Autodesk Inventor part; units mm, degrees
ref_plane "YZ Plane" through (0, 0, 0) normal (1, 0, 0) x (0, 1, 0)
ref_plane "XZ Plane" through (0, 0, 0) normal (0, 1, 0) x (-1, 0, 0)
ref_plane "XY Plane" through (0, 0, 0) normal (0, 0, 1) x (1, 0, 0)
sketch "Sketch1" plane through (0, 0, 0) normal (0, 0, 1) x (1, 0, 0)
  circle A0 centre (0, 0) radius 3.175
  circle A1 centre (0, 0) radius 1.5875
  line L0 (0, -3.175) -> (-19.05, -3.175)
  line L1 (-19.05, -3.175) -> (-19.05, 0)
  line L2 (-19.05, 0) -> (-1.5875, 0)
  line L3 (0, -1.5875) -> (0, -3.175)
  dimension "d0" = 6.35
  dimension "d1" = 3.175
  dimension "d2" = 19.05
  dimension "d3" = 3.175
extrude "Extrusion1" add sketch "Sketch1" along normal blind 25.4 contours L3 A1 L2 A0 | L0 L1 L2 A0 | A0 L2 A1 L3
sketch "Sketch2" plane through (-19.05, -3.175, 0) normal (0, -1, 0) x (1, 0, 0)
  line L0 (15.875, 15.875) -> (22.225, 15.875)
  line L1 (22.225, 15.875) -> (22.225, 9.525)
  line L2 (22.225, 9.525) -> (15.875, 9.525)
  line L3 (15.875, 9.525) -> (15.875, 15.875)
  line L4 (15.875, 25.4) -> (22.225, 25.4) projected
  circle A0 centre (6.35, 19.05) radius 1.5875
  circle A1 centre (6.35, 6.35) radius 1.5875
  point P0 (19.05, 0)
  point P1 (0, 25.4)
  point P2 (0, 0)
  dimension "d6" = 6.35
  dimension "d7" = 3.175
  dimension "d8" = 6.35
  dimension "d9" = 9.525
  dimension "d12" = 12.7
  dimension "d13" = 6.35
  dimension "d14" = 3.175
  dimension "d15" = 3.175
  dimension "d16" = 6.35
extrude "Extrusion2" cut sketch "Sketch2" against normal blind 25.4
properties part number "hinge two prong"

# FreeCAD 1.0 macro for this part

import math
import FreeCAD as App
import Part
import Sketcher

V = App.Vector
Q = App.Units.Quantity


def add_polygon(sketch, points):
    """Adds a closed chain of lines whose ends are joined by coincident constraints."""
    first, n = sketch.GeometryCount, len(points)
    for a, b in zip(points, points[1:] + points[:1]):
        sketch.addGeometry(Part.LineSegment(App.Vector(*a, 0), App.Vector(*b, 0)), False)
    for i in range(n):
        sketch.addConstraint(Sketcher.Constraint("Coincident", first + i, 2, first + (i + 1) % n, 1))

doc = App.newDocument("Part")
body = doc.addObject("PartDesign::Body", "Body")

# Sketch on XY plane
sketch1 = body.newObject("Sketcher::SketchObject", "Sketch")
sketch1.AttachmentSupport = (doc.getObject("XY_Plane"), [""])
sketch1.MapMode = "FlatFace"
sketch1.addGeometry(Part.LineSegment(V(-3.2, 0, 0), V(-19.1, 0, 0)), False)
sketch1.addGeometry(Part.LineSegment(V(-19.1, 0, 0), V(-19.1, -3.2, 0)), False)
sketch1.addGeometry(Part.LineSegment(V(-19.1, -3.2, 0), V(0, -3.2, 0)), False)
sketch1.addGeometry(Part.ArcOfCircle(Part.Circle(V(0, 0, 0), V(0, 0, 1), 3.2), math.radians(-90), math.radians(180)), False)
sketch1.addGeometry(Part.Circle(V(0, 0, 0), V(0, 0, 1), 1.6), False)
sketch1.addConstraint(Sketcher.Constraint("Coincident", 0, 2, 1, 1))
sketch1.addConstraint(Sketcher.Constraint("Coincident", 1, 2, 2, 1))
sketch1.addConstraint(Sketcher.Constraint("Tangent", 2, 2, 3, 1))
sketch1.addConstraint(Sketcher.Constraint("Coincident", 3, 2, 0, 1))
sketch1.addConstraint(Sketcher.Constraint("Horizontal", 0))
sketch1.addConstraint(Sketcher.Constraint("Vertical", 1))
sketch1.addConstraint(Sketcher.Constraint("Horizontal", 2))
sketch1.addConstraint(Sketcher.Constraint("Coincident", 3, 3, -1, 1))
sketch1.addConstraint(Sketcher.Constraint("Coincident", 4, 3, -1, 1))
sketch1.addConstraint(Sketcher.Constraint("PointOnObject", 0, 2, -1))
sketch1.addConstraint(Sketcher.Constraint("Diameter", 4, Q("0.125 in")))
sketch1.addConstraint(Sketcher.Constraint("Radius", 3, Q("0.125 in")))
sketch1.addConstraint(Sketcher.Constraint("DistanceX", 2, 1, 2, 2, Q("0.75 in")))
pad1 = body.newObject("PartDesign::Pad", "Pad")
pad1.Profile = sketch1
pad1.Length = Q("1 in")

# Sketch on XZ plane
sketch2 = body.newObject("Sketcher::SketchObject", "Sketch001")
sketch2.AttachmentSupport = (doc.getObject("XZ_Plane"), [""])
sketch2.MapMode = "FlatFace"
sketch2.AttachmentOffset = App.Placement(V(0, 0, 0.125 * 25.4), App.Rotation())
add_polygon(sketch2, [(3.2, 15.9), (-3.2, 15.9), (-3.2, 9.5), (3.2, 9.5)])  # lines 0-3
sketch2.addGeometry(Part.Circle(V(-12.7, 19.1, 0), V(0, 0, 1), 1.6), False)  # 4
sketch2.addGeometry(Part.Circle(V(-12.7, 6.3, 0), V(0, 0, 1), 1.6), False)  # 5
sketch2.addConstraint(Sketcher.Constraint("Horizontal", 0))
sketch2.addConstraint(Sketcher.Constraint("Vertical", 1))
sketch2.addConstraint(Sketcher.Constraint("Horizontal", 2))
sketch2.addConstraint(Sketcher.Constraint("Vertical", 3))
sketch2.addConstraint(Sketcher.Constraint("Equal", 4, 5))
sketch2.addConstraint(Sketcher.Constraint("Vertical", 4, 3, 5, 3))
sketch2.addConstraint(Sketcher.Constraint("Equal", 2, 1))
sketch2.addConstraint(Sketcher.Constraint("Diameter", 4, Q("0.125 in")))
sketch2.addConstraint(Sketcher.Constraint("DistanceX", 0, 2, 0, 1, Q("0.25 in")))
sketch2.addConstraint(Sketcher.Constraint("DistanceX", 4, 3, -1, 1, Q("0.5 in")))
sketch2.addConstraint(Sketcher.Constraint("DistanceY", 5, 3, 4, 3, Q("0.5 in")))
sketch2.addConstraint(Sketcher.Constraint("DistanceY", -1, 1, 5, 3, Q("0.25 in")))
sketch2.addConstraint(Sketcher.Constraint("DistanceX", 0, 2, -1, 1, Q("0.125 in")))
sketch2.addConstraint(Sketcher.Constraint("DistanceY", -1, 1, 1, 2, Q("0.375 in")))
pocket1 = body.newObject("PartDesign::Pocket", "Pocket")
pocket1.Profile = sketch2
pocket1.Length = Q("1 in")

doc.recompute()
